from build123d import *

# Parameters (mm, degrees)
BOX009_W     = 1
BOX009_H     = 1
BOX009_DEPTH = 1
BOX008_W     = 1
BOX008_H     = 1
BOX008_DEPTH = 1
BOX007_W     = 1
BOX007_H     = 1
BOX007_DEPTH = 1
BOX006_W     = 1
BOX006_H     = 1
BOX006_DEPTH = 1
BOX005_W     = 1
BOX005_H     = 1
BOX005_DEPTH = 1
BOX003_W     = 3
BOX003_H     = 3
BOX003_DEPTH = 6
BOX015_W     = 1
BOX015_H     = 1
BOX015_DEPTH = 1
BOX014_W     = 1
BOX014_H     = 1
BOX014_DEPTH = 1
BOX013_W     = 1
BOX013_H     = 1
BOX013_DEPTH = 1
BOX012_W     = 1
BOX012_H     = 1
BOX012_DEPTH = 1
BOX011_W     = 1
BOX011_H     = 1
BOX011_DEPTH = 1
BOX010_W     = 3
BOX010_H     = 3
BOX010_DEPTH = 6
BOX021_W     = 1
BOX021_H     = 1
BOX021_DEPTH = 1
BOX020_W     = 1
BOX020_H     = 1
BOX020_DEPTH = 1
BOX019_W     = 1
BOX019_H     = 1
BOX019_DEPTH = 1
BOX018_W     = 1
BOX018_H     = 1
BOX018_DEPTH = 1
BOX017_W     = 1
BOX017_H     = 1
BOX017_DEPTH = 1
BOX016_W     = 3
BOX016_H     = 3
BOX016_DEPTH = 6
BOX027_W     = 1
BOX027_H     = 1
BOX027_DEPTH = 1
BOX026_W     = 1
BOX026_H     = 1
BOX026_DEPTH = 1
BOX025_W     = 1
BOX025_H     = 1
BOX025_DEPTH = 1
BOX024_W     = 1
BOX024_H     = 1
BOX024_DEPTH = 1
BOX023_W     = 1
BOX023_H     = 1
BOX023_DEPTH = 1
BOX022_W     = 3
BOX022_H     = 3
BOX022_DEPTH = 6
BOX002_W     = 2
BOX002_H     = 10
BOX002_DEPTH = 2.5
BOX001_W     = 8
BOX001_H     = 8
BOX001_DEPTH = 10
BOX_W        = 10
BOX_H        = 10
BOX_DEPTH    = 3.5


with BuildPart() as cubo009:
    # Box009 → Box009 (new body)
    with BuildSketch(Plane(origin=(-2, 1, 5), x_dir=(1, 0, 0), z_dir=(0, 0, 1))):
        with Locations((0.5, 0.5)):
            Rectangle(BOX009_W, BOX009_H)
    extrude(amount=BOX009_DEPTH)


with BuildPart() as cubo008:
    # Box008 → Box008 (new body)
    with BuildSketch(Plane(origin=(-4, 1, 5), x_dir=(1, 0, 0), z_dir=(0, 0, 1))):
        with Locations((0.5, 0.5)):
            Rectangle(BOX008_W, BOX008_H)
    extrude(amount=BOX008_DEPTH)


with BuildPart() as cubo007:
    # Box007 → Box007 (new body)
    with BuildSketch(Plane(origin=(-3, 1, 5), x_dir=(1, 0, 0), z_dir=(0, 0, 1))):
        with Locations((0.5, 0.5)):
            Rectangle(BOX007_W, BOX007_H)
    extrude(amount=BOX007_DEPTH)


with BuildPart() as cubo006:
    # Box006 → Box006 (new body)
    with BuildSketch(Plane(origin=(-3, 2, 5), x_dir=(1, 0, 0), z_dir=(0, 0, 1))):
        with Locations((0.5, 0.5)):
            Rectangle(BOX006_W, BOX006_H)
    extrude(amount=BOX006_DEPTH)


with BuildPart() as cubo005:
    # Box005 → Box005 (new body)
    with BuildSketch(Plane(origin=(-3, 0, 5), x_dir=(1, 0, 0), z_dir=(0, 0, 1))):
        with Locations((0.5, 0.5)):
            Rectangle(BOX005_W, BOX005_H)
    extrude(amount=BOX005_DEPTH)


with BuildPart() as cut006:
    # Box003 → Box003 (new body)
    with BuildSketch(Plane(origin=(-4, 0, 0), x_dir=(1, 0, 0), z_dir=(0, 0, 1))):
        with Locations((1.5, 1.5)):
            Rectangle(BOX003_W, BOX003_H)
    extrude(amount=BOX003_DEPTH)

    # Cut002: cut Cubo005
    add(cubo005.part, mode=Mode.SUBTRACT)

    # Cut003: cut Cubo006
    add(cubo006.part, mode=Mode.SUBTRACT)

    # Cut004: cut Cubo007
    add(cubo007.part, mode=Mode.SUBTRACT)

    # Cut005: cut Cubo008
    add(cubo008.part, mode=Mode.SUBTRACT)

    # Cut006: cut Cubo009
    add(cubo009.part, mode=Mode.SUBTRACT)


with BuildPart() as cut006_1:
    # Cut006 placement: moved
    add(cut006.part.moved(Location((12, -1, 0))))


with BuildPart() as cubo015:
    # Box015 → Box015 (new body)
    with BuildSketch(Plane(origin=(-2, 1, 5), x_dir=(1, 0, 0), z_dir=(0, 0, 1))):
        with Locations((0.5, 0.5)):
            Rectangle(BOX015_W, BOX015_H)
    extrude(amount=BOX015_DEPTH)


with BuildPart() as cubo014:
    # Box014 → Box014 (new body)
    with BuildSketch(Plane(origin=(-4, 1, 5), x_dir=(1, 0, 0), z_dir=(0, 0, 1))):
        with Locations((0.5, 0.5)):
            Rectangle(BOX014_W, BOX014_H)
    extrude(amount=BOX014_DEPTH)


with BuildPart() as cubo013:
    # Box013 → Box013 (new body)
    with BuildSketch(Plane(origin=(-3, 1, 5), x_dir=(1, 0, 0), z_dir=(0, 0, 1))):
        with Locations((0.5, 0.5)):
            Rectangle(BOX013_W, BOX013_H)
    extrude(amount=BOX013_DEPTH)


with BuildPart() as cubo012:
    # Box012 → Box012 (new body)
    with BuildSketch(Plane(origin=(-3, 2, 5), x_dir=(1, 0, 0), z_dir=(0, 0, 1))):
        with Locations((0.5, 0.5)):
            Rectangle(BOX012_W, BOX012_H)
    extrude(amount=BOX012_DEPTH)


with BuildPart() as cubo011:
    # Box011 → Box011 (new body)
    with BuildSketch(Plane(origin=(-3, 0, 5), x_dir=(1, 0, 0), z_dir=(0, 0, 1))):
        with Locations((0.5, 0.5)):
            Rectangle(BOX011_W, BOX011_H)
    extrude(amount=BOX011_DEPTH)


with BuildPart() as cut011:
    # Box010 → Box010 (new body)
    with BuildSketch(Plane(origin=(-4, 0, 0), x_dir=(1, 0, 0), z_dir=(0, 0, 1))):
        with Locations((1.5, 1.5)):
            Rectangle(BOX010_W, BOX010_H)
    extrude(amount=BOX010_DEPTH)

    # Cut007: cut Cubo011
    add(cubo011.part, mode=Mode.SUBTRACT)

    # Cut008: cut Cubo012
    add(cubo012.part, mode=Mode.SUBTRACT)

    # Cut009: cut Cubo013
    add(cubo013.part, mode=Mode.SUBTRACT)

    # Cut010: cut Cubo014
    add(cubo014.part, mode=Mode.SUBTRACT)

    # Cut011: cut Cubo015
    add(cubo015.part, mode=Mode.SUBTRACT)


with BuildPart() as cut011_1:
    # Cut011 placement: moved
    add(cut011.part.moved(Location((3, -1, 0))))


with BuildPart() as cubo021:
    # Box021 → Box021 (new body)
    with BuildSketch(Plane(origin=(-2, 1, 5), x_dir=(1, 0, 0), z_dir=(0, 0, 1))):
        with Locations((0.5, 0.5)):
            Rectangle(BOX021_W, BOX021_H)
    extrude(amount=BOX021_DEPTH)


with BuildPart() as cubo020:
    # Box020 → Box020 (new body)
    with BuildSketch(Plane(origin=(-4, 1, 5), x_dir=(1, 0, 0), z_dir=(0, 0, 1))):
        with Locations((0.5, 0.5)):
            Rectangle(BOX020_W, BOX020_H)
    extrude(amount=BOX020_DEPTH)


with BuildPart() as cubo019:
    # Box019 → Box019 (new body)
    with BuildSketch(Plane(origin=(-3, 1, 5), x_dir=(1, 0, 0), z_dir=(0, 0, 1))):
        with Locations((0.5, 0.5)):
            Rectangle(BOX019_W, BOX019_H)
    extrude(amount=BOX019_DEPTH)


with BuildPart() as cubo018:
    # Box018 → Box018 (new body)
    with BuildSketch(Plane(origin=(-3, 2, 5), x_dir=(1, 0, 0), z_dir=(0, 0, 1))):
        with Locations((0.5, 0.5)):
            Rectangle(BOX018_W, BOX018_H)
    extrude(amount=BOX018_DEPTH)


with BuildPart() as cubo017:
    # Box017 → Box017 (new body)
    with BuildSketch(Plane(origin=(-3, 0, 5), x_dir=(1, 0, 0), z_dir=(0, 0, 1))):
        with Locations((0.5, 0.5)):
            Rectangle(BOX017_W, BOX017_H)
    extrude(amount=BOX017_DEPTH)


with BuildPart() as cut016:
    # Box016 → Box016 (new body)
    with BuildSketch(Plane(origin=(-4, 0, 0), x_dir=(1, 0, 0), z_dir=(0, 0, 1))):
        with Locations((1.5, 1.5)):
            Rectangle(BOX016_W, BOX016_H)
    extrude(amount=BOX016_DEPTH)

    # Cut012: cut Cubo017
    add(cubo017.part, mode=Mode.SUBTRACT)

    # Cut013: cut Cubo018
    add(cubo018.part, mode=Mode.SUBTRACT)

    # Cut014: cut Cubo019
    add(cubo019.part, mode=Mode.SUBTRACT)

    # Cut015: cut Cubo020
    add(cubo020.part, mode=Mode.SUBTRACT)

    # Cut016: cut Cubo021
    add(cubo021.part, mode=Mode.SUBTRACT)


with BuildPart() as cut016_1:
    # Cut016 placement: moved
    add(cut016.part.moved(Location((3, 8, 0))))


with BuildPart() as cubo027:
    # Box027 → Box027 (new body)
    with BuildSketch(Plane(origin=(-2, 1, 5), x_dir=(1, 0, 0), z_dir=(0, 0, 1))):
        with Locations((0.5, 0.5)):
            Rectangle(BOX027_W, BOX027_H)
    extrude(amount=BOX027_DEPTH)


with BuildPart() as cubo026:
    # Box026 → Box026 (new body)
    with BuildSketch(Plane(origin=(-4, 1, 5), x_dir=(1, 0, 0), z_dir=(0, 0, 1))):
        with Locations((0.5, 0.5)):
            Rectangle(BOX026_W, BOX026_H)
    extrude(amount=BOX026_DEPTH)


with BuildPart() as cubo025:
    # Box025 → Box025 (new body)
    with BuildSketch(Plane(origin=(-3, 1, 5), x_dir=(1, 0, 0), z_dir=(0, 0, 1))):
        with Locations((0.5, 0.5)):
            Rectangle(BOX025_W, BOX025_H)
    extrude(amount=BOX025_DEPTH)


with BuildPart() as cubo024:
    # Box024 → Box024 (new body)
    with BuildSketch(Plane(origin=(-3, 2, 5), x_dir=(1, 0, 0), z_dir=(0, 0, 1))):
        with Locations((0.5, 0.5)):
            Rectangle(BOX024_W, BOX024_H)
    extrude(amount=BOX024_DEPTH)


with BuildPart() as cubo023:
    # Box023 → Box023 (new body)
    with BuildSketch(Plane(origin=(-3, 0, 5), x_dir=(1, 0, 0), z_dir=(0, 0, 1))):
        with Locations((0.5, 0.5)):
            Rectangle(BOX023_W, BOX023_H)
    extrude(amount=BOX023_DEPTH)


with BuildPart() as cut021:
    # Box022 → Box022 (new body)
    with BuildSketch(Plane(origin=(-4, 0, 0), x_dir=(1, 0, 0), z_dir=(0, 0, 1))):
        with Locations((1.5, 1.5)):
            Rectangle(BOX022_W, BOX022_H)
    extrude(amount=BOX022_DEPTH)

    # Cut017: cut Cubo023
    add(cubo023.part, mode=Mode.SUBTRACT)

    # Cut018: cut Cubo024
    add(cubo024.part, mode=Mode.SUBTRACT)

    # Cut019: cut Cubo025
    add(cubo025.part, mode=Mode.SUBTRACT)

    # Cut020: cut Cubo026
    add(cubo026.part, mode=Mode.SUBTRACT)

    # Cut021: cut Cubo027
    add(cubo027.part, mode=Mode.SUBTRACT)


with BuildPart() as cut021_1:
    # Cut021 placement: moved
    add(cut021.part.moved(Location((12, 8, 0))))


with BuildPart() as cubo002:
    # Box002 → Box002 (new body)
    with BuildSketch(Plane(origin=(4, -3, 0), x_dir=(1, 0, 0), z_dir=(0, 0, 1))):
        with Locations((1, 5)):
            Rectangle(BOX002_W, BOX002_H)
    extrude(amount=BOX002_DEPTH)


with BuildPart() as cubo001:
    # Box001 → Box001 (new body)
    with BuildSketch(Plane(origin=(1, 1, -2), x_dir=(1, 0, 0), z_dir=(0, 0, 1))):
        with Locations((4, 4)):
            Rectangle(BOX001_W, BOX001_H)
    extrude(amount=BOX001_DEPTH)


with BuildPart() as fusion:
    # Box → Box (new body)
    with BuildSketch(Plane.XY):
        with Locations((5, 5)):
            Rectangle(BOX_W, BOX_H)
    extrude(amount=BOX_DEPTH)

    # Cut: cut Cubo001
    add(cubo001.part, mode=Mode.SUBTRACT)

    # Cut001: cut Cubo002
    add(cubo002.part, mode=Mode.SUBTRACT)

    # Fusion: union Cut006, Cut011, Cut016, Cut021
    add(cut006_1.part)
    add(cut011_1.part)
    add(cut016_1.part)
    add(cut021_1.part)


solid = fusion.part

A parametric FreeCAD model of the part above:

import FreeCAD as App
import Part
import Sketcher

V = App.Vector


def add_polygon(sketch, points):
    """Adds a closed chain of lines whose ends are joined by coincident constraints."""
    first, n = sketch.GeometryCount, len(points)
    for a, b in zip(points, points[1:] + points[:1]):
        sketch.addGeometry(Part.LineSegment(App.Vector(*a, 0), App.Vector(*b, 0)), False)
    for i in range(n):
        sketch.addConstraint(Sketcher.Constraint("Coincident", first + i, 2, first + (i + 1) % n, 1))

doc = App.newDocument("Part")
body = doc.addObject("PartDesign::Body", "Body")

# Sketch on XY plane
sketch1 = doc.addObject("Sketcher::SketchObject", "Sketch")
body.addObject(sketch1)
sketch1.AttachmentSupport = (doc.XY_Plane, [""])
sketch1.MapMode = "FlatFace"
sketch1.AttachmentOffset = App.Placement(V(0, 0, 5), App.Rotation())
add_polygon(sketch1, [(-2, 2), (-2, 1), (-1, 1), (-1, 2)])  # lines 0-3
sketch1.addConstraint(Sketcher.Constraint("Vertical", 0))
sketch1.addConstraint(Sketcher.Constraint("Horizontal", 1))
sketch1.addConstraint(Sketcher.Constraint("Vertical", 2))
sketch1.addConstraint(Sketcher.Constraint("Horizontal", 3))
sketch1.addConstraint(Sketcher.Constraint("Equal", 3, 0))
sketch1.addConstraint(Sketcher.Constraint("DistanceX", 1, 1, 1, 2, 1.0))
sketch1.addConstraint(Sketcher.Constraint("DistanceX", 0, 2, -1, 1, 2.0))
sketch1.addConstraint(Sketcher.Constraint("DistanceY", -1, 1, 0, 2, 1.0))
pad1 = doc.addObject("PartDesign::Pad", "Pad")
body.addObject(pad1)
pad1.Profile = sketch1
pad1.Length = 1
body2 = doc.addObject("PartDesign::Body", "Body001")

# Sketch on XY plane
sketch2 = doc.addObject("Sketcher::SketchObject", "Sketch001")
body2.addObject(sketch2)
sketch2.AttachmentSupport = (doc.getObject("XY_Plane001"), [""])
sketch2.MapMode = "FlatFace"
sketch2.AttachmentOffset = App.Placement(V(0, 0, 5), App.Rotation())
add_polygon(sketch2, [(-4, 2), (-4, 1), (-3, 1), (-3, 2)])  # lines 0-3
sketch2.addConstraint(Sketcher.Constraint("Vertical", 0))
sketch2.addConstraint(Sketcher.Constraint("Horizontal", 1))
sketch2.addConstraint(Sketcher.Constraint("Vertical", 2))
sketch2.addConstraint(Sketcher.Constraint("Horizontal", 3))
sketch2.addConstraint(Sketcher.Constraint("Equal", 3, 0))
sketch2.addConstraint(Sketcher.Constraint("DistanceX", 1, 1, 1, 2, 1.0))
sketch2.addConstraint(Sketcher.Constraint("DistanceX", 0, 2, -1, 1, 4.0))
sketch2.addConstraint(Sketcher.Constraint("DistanceY", -1, 1, 0, 2, 1.0))
pad2 = doc.addObject("PartDesign::Pad", "Pad001")
body2.addObject(pad2)
pad2.Profile = sketch2
pad2.Length = 1
body3 = doc.addObject("PartDesign::Body", "Body002")

# Sketch on XY plane
sketch3 = doc.addObject("Sketcher::SketchObject", "Sketch002")
body3.addObject(sketch3)
sketch3.AttachmentSupport = (doc.getObject("XY_Plane002"), [""])
sketch3.MapMode = "FlatFace"
sketch3.AttachmentOffset = App.Placement(V(0, 0, 5), App.Rotation())
add_polygon(sketch3, [(-3, 2), (-3, 1), (-2, 1), (-2, 2)])  # lines 0-3
sketch3.addConstraint(Sketcher.Constraint("Vertical", 0))
sketch3.addConstraint(Sketcher.Constraint("Horizontal", 1))
sketch3.addConstraint(Sketcher.Constraint("Vertical", 2))
sketch3.addConstraint(Sketcher.Constraint("Horizontal", 3))
sketch3.addConstraint(Sketcher.Constraint("Equal", 3, 0))
sketch3.addConstraint(Sketcher.Constraint("DistanceX", 1, 1, 1, 2, 1.0))
sketch3.addConstraint(Sketcher.Constraint("DistanceX", 0, 2, -1, 1, 3.0))
sketch3.addConstraint(Sketcher.Constraint("DistanceY", -1, 1, 0, 2, 1.0))
pad3 = doc.addObject("PartDesign::Pad", "Pad002")
body3.addObject(pad3)
pad3.Profile = sketch3
pad3.Length = 1
body4 = doc.addObject("PartDesign::Body", "Body003")

# Sketch on XY plane
sketch4 = doc.addObject("Sketcher::SketchObject", "Sketch003")
body4.addObject(sketch4)
sketch4.AttachmentSupport = (doc.getObject("XY_Plane003"), [""])
sketch4.MapMode = "FlatFace"
sketch4.AttachmentOffset = App.Placement(V(0, 0, 5), App.Rotation())
add_polygon(sketch4, [(-3, 3), (-3, 2), (-2, 2), (-2, 3)])  # lines 0-3
sketch4.addConstraint(Sketcher.Constraint("Vertical", 0))
sketch4.addConstraint(Sketcher.Constraint("Horizontal", 1))
sketch4.addConstraint(Sketcher.Constraint("Vertical", 2))
sketch4.addConstraint(Sketcher.Constraint("Horizontal", 3))
sketch4.addConstraint(Sketcher.Constraint("Equal", 3, 0))
sketch4.addConstraint(Sketcher.Constraint("DistanceX", 1, 1, 1, 2, 1.0))
sketch4.addConstraint(Sketcher.Constraint("DistanceX", 0, 2, -1, 1, 3.0))
sketch4.addConstraint(Sketcher.Constraint("DistanceY", -1, 1, 0, 2, 2.0))
pad4 = doc.addObject("PartDesign::Pad", "Pad003")
body4.addObject(pad4)
pad4.Profile = sketch4
pad4.Length = 1
body5 = doc.addObject("PartDesign::Body", "Body004")

# Sketch on XY plane
sketch5 = doc.addObject("Sketcher::SketchObject", "Sketch004")
body5.addObject(sketch5)
sketch5.AttachmentSupport = (doc.getObject("XY_Plane004"), [""])
sketch5.MapMode = "FlatFace"
sketch5.AttachmentOffset = App.Placement(V(0, 0, 5), App.Rotation())
add_polygon(sketch5, [(-3, 1), (-3, 0), (-2, 0), (-2, 1)])  # lines 0-3
sketch5.addConstraint(Sketcher.Constraint("Vertical", 0))
sketch5.addConstraint(Sketcher.Constraint("Horizontal", 1))
sketch5.addConstraint(Sketcher.Constraint("Vertical", 2))
sketch5.addConstraint(Sketcher.Constraint("Horizontal", 3))
sketch5.addConstraint(Sketcher.Constraint("PointOnObject", 0, 2, -1))
sketch5.addConstraint(Sketcher.Constraint("Equal", 3, 0))
sketch5.addConstraint(Sketcher.Constraint("DistanceX", 1, 1, 1, 2, 1.0))
sketch5.addConstraint(Sketcher.Constraint("DistanceX", 0, 2, -1, 1, 3.0))
pad5 = doc.addObject("PartDesign::Pad", "Pad004")
body5.addObject(pad5)
pad5.Profile = sketch5
pad5.Length = 1
body6 = doc.addObject("PartDesign::Body", "Body005")

# Sketch on XY plane
sketch6 = doc.addObject("Sketcher::SketchObject", "Sketch005")
body6.addObject(sketch6)
sketch6.AttachmentSupport = (doc.getObject("XY_Plane005"), [""])
sketch6.MapMode = "FlatFace"
add_polygon(sketch6, [(-4, 3), (-4, 0), (-1, 0), (-1, 3)])  # lines 0-3
sketch6.addConstraint(Sketcher.Constraint("Vertical", 0))
sketch6.addConstraint(Sketcher.Constraint("Horizontal", 1))
sketch6.addConstraint(Sketcher.Constraint("Vertical", 2))
sketch6.addConstraint(Sketcher.Constraint("Horizontal", 3))
sketch6.addConstraint(Sketcher.Constraint("PointOnObject", 0, 2, -1))
sketch6.addConstraint(Sketcher.Constraint("Equal", 3, 0))
sketch6.addConstraint(Sketcher.Constraint("DistanceX", 1, 1, 1, 2, 3.0))
sketch6.addConstraint(Sketcher.Constraint("DistanceX", 0, 2, -1, 1, 4.0))
pad6 = doc.addObject("PartDesign::Pad", "Pad005")
body6.addObject(pad6)
pad6.Profile = sketch6
pad6.Length = 6
doc.recompute()

boolean = doc.addObject("PartDesign::Boolean", "Boolean")
body6.addObject(boolean)
boolean.Type = "Cut"
boolean.addObjects([body5])
doc.recompute()

boolean2 = doc.addObject("PartDesign::Boolean", "Boolean001")
body6.addObject(boolean2)
boolean2.Type = "Cut"
boolean2.addObjects([body4])
doc.recompute()

boolean3 = doc.addObject("PartDesign::Boolean", "Boolean002")
body6.addObject(boolean3)
boolean3.Type = "Cut"
boolean3.addObjects([body3])
doc.recompute()

boolean4 = doc.addObject("PartDesign::Boolean", "Boolean003")
body6.addObject(boolean4)
boolean4.Type = "Cut"
boolean4.addObjects([body2])
doc.recompute()

boolean5 = doc.addObject("PartDesign::Boolean", "Boolean004")
body6.addObject(boolean5)
boolean5.Type = "Cut"
boolean5.addObjects([body])
body7 = doc.addObject("PartDesign::Body", "Body006")
doc.recompute()

body6.Placement = App.Placement(V(12, -1, 0), App.Rotation(V(0, 0, 1), 0))
boolean6 = doc.addObject("PartDesign::Boolean", "Boolean005")
body7.addObject(boolean6)
boolean6.Type = "Fuse"
boolean6.addObjects([body6])
body8 = doc.addObject("PartDesign::Body", "Body007")

# Sketch on XY plane
sketch7 = doc.addObject("Sketcher::SketchObject", "Sketch006")
body8.addObject(sketch7)
sketch7.AttachmentSupport = (doc.getObject("XY_Plane007"), [""])
sketch7.MapMode = "FlatFace"
sketch7.AttachmentOffset = App.Placement(V(0, 0, 5), App.Rotation())
add_polygon(sketch7, [(-2, 2), (-2, 1), (-1, 1), (-1, 2)])  # lines 0-3
sketch7.addConstraint(Sketcher.Constraint("Vertical", 0))
sketch7.addConstraint(Sketcher.Constraint("Horizontal", 1))
sketch7.addConstraint(Sketcher.Constraint("Vertical", 2))
sketch7.addConstraint(Sketcher.Constraint("Horizontal", 3))
sketch7.addConstraint(Sketcher.Constraint("Equal", 3, 0))
sketch7.addConstraint(Sketcher.Constraint("DistanceX", 1, 1, 1, 2, 1.0))
sketch7.addConstraint(Sketcher.Constraint("DistanceX", 0, 2, -1, 1, 2.0))
sketch7.addConstraint(Sketcher.Constraint("DistanceY", -1, 1, 0, 2, 1.0))
pad7 = doc.addObject("PartDesign::Pad", "Pad006")
body8.addObject(pad7)
pad7.Profile = sketch7
pad7.Length = 1
body9 = doc.addObject("PartDesign::Body", "Body008")

# Sketch on XY plane
sketch8 = doc.addObject("Sketcher::SketchObject", "Sketch007")
body9.addObject(sketch8)
sketch8.AttachmentSupport = (doc.getObject("XY_Plane008"), [""])
sketch8.MapMode = "FlatFace"
sketch8.AttachmentOffset = App.Placement(V(0, 0, 5), App.Rotation())
add_polygon(sketch8, [(-4, 2), (-4, 1), (-3, 1), (-3, 2)])  # lines 0-3
sketch8.addConstraint(Sketcher.Constraint("Vertical", 0))
sketch8.addConstraint(Sketcher.Constraint("Horizontal", 1))
sketch8.addConstraint(Sketcher.Constraint("Vertical", 2))
sketch8.addConstraint(Sketcher.Constraint("Horizontal", 3))
sketch8.addConstraint(Sketcher.Constraint("Equal", 3, 0))
sketch8.addConstraint(Sketcher.Constraint("DistanceX", 1, 1, 1, 2, 1.0))
sketch8.addConstraint(Sketcher.Constraint("DistanceX", 0, 2, -1, 1, 4.0))
sketch8.addConstraint(Sketcher.Constraint("DistanceY", -1, 1, 0, 2, 1.0))
pad8 = doc.addObject("PartDesign::Pad", "Pad007")
body9.addObject(pad8)
pad8.Profile = sketch8
pad8.Length = 1
body10 = doc.addObject("PartDesign::Body", "Body009")

# Sketch on XY plane
sketch9 = doc.addObject("Sketcher::SketchObject", "Sketch008")
body10.addObject(sketch9)
sketch9.AttachmentSupport = (doc.getObject("XY_Plane009"), [""])
sketch9.MapMode = "FlatFace"
sketch9.AttachmentOffset = App.Placement(V(0, 0, 5), App.Rotation())
add_polygon(sketch9, [(-3, 2), (-3, 1), (-2, 1), (-2, 2)])  # lines 0-3
sketch9.addConstraint(Sketcher.Constraint("Vertical", 0))
sketch9.addConstraint(Sketcher.Constraint("Horizontal", 1))
sketch9.addConstraint(Sketcher.Constraint("Vertical", 2))
sketch9.addConstraint(Sketcher.Constraint("Horizontal", 3))
sketch9.addConstraint(Sketcher.Constraint("Equal", 3, 0))
sketch9.addConstraint(Sketcher.Constraint("DistanceX", 1, 1, 1, 2, 1.0))
sketch9.addConstraint(Sketcher.Constraint("DistanceX", 0, 2, -1, 1, 3.0))
sketch9.addConstraint(Sketcher.Constraint("DistanceY", -1, 1, 0, 2, 1.0))
pad9 = doc.addObject("PartDesign::Pad", "Pad008")
body10.addObject(pad9)
pad9.Profile = sketch9
pad9.Length = 1
body11 = doc.addObject("PartDesign::Body", "Body010")

# Sketch on XY plane
sketch10 = doc.addObject("Sketcher::SketchObject", "Sketch009")
body11.addObject(sketch10)
sketch10.AttachmentSupport = (doc.getObject("XY_Plane010"), [""])
sketch10.MapMode = "FlatFace"
sketch10.AttachmentOffset = App.Placement(V(0, 0, 5), App.Rotation())
add_polygon(sketch10, [(-3, 3), (-3, 2), (-2, 2), (-2, 3)])  # lines 0-3
sketch10.addConstraint(Sketcher.Constraint("Vertical", 0))
sketch10.addConstraint(Sketcher.Constraint("Horizontal", 1))
sketch10.addConstraint(Sketcher.Constraint("Vertical", 2))
sketch10.addConstraint(Sketcher.Constraint("Horizontal", 3))
sketch10.addConstraint(Sketcher.Constraint("Equal", 3, 0))
sketch10.addConstraint(Sketcher.Constraint("DistanceX", 1, 1, 1, 2, 1.0))
sketch10.addConstraint(Sketcher.Constraint("DistanceX", 0, 2, -1, 1, 3.0))
sketch10.addConstraint(Sketcher.Constraint("DistanceY", -1, 1, 0, 2, 2.0))
pad10 = doc.addObject("PartDesign::Pad", "Pad009")
body11.addObject(pad10)
pad10.Profile = sketch10
pad10.Length = 1
body12 = doc.addObject("PartDesign::Body", "Body011")

# Sketch on XY plane
sketch11 = doc.addObject("Sketcher::SketchObject", "Sketch010")
body12.addObject(sketch11)
sketch11.AttachmentSupport = (doc.getObject("XY_Plane011"), [""])
sketch11.MapMode = "FlatFace"
sketch11.AttachmentOffset = App.Placement(V(0, 0, 5), App.Rotation())
add_polygon(sketch11, [(-3, 1), (-3, 0), (-2, 0), (-2, 1)])  # lines 0-3
sketch11.addConstraint(Sketcher.Constraint("Vertical", 0))
sketch11.addConstraint(Sketcher.Constraint("Horizontal", 1))
sketch11.addConstraint(Sketcher.Constraint("Vertical", 2))
sketch11.addConstraint(Sketcher.Constraint("Horizontal", 3))
sketch11.addConstraint(Sketcher.Constraint("PointOnObject", 0, 2, -1))
sketch11.addConstraint(Sketcher.Constraint("Equal", 3, 0))
sketch11.addConstraint(Sketcher.Constraint("DistanceX", 1, 1, 1, 2, 1.0))
sketch11.addConstraint(Sketcher.Constraint("DistanceX", 0, 2, -1, 1, 3.0))
pad11 = doc.addObject("PartDesign::Pad", "Pad010")
body12.addObject(pad11)
pad11.Profile = sketch11
pad11.Length = 1
body13 = doc.addObject("PartDesign::Body", "Body012")

# Sketch on XY plane
sketch12 = doc.addObject("Sketcher::SketchObject", "Sketch011")
body13.addObject(sketch12)
sketch12.AttachmentSupport = (doc.getObject("XY_Plane012"), [""])
sketch12.MapMode = "FlatFace"
add_polygon(sketch12, [(-4, 3), (-4, 0), (-1, 0), (-1, 3)])  # lines 0-3
sketch12.addConstraint(Sketcher.Constraint("Vertical", 0))
sketch12.addConstraint(Sketcher.Constraint("Horizontal", 1))
sketch12.addConstraint(Sketcher.Constraint("Vertical", 2))
sketch12.addConstraint(Sketcher.Constraint("Horizontal", 3))
sketch12.addConstraint(Sketcher.Constraint("PointOnObject", 0, 2, -1))
sketch12.addConstraint(Sketcher.Constraint("Equal", 3, 0))
sketch12.addConstraint(Sketcher.Constraint("DistanceX", 1, 1, 1, 2, 3.0))
sketch12.addConstraint(Sketcher.Constraint("DistanceX", 0, 2, -1, 1, 4.0))
pad12 = doc.addObject("PartDesign::Pad", "Pad011")
body13.addObject(pad12)
pad12.Profile = sketch12
pad12.Length = 6
doc.recompute()

boolean7 = doc.addObject("PartDesign::Boolean", "Boolean006")
body13.addObject(boolean7)
boolean7.Type = "Cut"
boolean7.addObjects([body12])
doc.recompute()

boolean8 = doc.addObject("PartDesign::Boolean", "Boolean007")
body13.addObject(boolean8)
boolean8.Type = "Cut"
boolean8.addObjects([body11])
doc.recompute()

boolean9 = doc.addObject("PartDesign::Boolean", "Boolean008")
body13.addObject(boolean9)
boolean9.Type = "Cut"
boolean9.addObjects([body10])
doc.recompute()

boolean10 = doc.addObject("PartDesign::Boolean", "Boolean009")
body13.addObject(boolean10)
boolean10.Type = "Cut"
boolean10.addObjects([body9])
doc.recompute()

boolean11 = doc.addObject("PartDesign::Boolean", "Boolean010")
body13.addObject(boolean11)
boolean11.Type = "Cut"
boolean11.addObjects([body8])
body14 = doc.addObject("PartDesign::Body", "Body013")
doc.recompute()

body13.Placement = App.Placement(V(3, -1, 0), App.Rotation(V(0, 0, 1), 0))
boolean12 = doc.addObject("PartDesign::Boolean", "Boolean011")
body14.addObject(boolean12)
boolean12.Type = "Fuse"
boolean12.addObjects([body13])
body15 = doc.addObject("PartDesign::Body", "Body014")

# Sketch on XY plane
sketch13 = doc.addObject("Sketcher::SketchObject", "Sketch012")
body15.addObject(sketch13)
sketch13.AttachmentSupport = (doc.getObject("XY_Plane014"), [""])
sketch13.MapMode = "FlatFace"
sketch13.AttachmentOffset = App.Placement(V(0, 0, 5), App.Rotation())
add_polygon(sketch13, [(-2, 2), (-2, 1), (-1, 1), (-1, 2)])  # lines 0-3
sketch13.addConstraint(Sketcher.Constraint("Vertical", 0))
sketch13.addConstraint(Sketcher.Constraint("Horizontal", 1))
sketch13.addConstraint(Sketcher.Constraint("Vertical", 2))
sketch13.addConstraint(Sketcher.Constraint("Horizontal", 3))
sketch13.addConstraint(Sketcher.Constraint("Equal", 3, 0))
sketch13.addConstraint(Sketcher.Constraint("DistanceX", 1, 1, 1, 2, 1.0))
sketch13.addConstraint(Sketcher.Constraint("DistanceX", 0, 2, -1, 1, 2.0))
sketch13.addConstraint(Sketcher.Constraint("DistanceY", -1, 1, 0, 2, 1.0))
pad13 = doc.addObject("PartDesign::Pad", "Pad012")
body15.addObject(pad13)
pad13.Profile = sketch13
pad13.Length = 1
body16 = doc.addObject("PartDesign::Body", "Body015")

# Sketch on XY plane
sketch14 = doc.addObject("Sketcher::SketchObject", "Sketch013")
body16.addObject(sketch14)
sketch14.AttachmentSupport = (doc.getObject("XY_Plane015"), [""])
sketch14.MapMode = "FlatFace"
sketch14.AttachmentOffset = App.Placement(V(0, 0, 5), App.Rotation())
add_polygon(sketch14, [(-4, 2), (-4, 1), (-3, 1), (-3, 2)])  # lines 0-3
sketch14.addConstraint(Sketcher.Constraint("Vertical", 0))
sketch14.addConstraint(Sketcher.Constraint("Horizontal", 1))
sketch14.addConstraint(Sketcher.Constraint("Vertical", 2))
sketch14.addConstraint(Sketcher.Constraint("Horizontal", 3))
sketch14.addConstraint(Sketcher.Constraint("Equal", 3, 0))
sketch14.addConstraint(Sketcher.Constraint("DistanceX", 1, 1, 1, 2, 1.0))
sketch14.addConstraint(Sketcher.Constraint("DistanceX", 0, 2, -1, 1, 4.0))
sketch14.addConstraint(Sketcher.Constraint("DistanceY", -1, 1, 0, 2, 1.0))
pad14 = doc.addObject("PartDesign::Pad", "Pad013")
body16.addObject(pad14)
pad14.Profile = sketch14
pad14.Length = 1
body17 = doc.addObject("PartDesign::Body", "Body016")

# Sketch on XY plane
sketch15 = doc.addObject("Sketcher::SketchObject", "Sketch014")
body17.addObject(sketch15)
sketch15.AttachmentSupport = (doc.getObject("XY_Plane016"), [""])
sketch15.MapMode = "FlatFace"
sketch15.AttachmentOffset = App.Placement(V(0, 0, 5), App.Rotation())
add_polygon(sketch15, [(-3, 2), (-3, 1), (-2, 1), (-2, 2)])  # lines 0-3
sketch15.addConstraint(Sketcher.Constraint("Vertical", 0))
sketch15.addConstraint(Sketcher.Constraint("Horizontal", 1))
sketch15.addConstraint(Sketcher.Constraint("Vertical", 2))
sketch15.addConstraint(Sketcher.Constraint("Horizontal", 3))
sketch15.addConstraint(Sketcher.Constraint("Equal", 3, 0))
sketch15.addConstraint(Sketcher.Constraint("DistanceX", 1, 1, 1, 2, 1.0))
sketch15.addConstraint(Sketcher.Constraint("DistanceX", 0, 2, -1, 1, 3.0))
sketch15.addConstraint(Sketcher.Constraint("DistanceY", -1, 1, 0, 2, 1.0))
pad15 = doc.addObject("PartDesign::Pad", "Pad014")
body17.addObject(pad15)
pad15.Profile = sketch15
pad15.Length = 1
body18 = doc.addObject("PartDesign::Body", "Body017")

# Sketch on XY plane
sketch16 = doc.addObject("Sketcher::SketchObject", "Sketch015")
body18.addObject(sketch16)
sketch16.AttachmentSupport = (doc.getObject("XY_Plane017"), [""])
sketch16.MapMode = "FlatFace"
sketch16.AttachmentOffset = App.Placement(V(0, 0, 5), App.Rotation())
add_polygon(sketch16, [(-3, 3), (-3, 2), (-2, 2), (-2, 3)])  # lines 0-3
sketch16.addConstraint(Sketcher.Constraint("Vertical", 0))
sketch16.addConstraint(Sketcher.Constraint("Horizontal", 1))
sketch16.addConstraint(Sketcher.Constraint("Vertical", 2))
sketch16.addConstraint(Sketcher.Constraint("Horizontal", 3))
sketch16.addConstraint(Sketcher.Constraint("Equal", 3, 0))
sketch16.addConstraint(Sketcher.Constraint("DistanceX", 1, 1, 1, 2, 1.0))
sketch16.addConstraint(Sketcher.Constraint("DistanceX", 0, 2, -1, 1, 3.0))
sketch16.addConstraint(Sketcher.Constraint("DistanceY", -1, 1, 0, 2, 2.0))
pad16 = doc.addObject("PartDesign::Pad", "Pad015")
body18.addObject(pad16)
pad16.Profile = sketch16
pad16.Length = 1
body19 = doc.addObject("PartDesign::Body", "Body018")

# Sketch on XY plane
sketch17 = doc.addObject("Sketcher::SketchObject", "Sketch016")
body19.addObject(sketch17)
sketch17.AttachmentSupport = (doc.getObject("XY_Plane018"), [""])
sketch17.MapMode = "FlatFace"
sketch17.AttachmentOffset = App.Placement(V(0, 0, 5), App.Rotation())
add_polygon(sketch17, [(-3, 1), (-3, 0), (-2, 0), (-2, 1)])  # lines 0-3
sketch17.addConstraint(Sketcher.Constraint("Vertical", 0))
sketch17.addConstraint(Sketcher.Constraint("Horizontal", 1))
sketch17.addConstraint(Sketcher.Constraint("Vertical", 2))
sketch17.addConstraint(Sketcher.Constraint("Horizontal", 3))
sketch17.addConstraint(Sketcher.Constraint("PointOnObject", 0, 2, -1))
sketch17.addConstraint(Sketcher.Constraint("Equal", 3, 0))
sketch17.addConstraint(Sketcher.Constraint("DistanceX", 1, 1, 1, 2, 1.0))
sketch17.addConstraint(Sketcher.Constraint("DistanceX", 0, 2, -1, 1, 3.0))
pad17 = doc.addObject("PartDesign::Pad", "Pad016")
body19.addObject(pad17)
pad17.Profile = sketch17
pad17.Length = 1
body20 = doc.addObject("PartDesign::Body", "Body019")

# Sketch on XY plane
sketch18 = doc.addObject("Sketcher::SketchObject", "Sketch017")
body20.addObject(sketch18)
sketch18.AttachmentSupport = (doc.getObject("XY_Plane019"), [""])
sketch18.MapMode = "FlatFace"
add_polygon(sketch18, [(-4, 3), (-4, 0), (-1, 0), (-1, 3)])  # lines 0-3
sketch18.addConstraint(Sketcher.Constraint("Vertical", 0))
sketch18.addConstraint(Sketcher.Constraint("Horizontal", 1))
sketch18.addConstraint(Sketcher.Constraint("Vertical", 2))
sketch18.addConstraint(Sketcher.Constraint("Horizontal", 3))
sketch18.addConstraint(Sketcher.Constraint("PointOnObject", 0, 2, -1))
sketch18.addConstraint(Sketcher.Constraint("Equal", 3, 0))
sketch18.addConstraint(Sketcher.Constraint("DistanceX", 1, 1, 1, 2, 3.0))
sketch18.addConstraint(Sketcher.Constraint("DistanceX", 0, 2, -1, 1, 4.0))
pad18 = doc.addObject("PartDesign::Pad", "Pad017")
body20.addObject(pad18)
pad18.Profile = sketch18
pad18.Length = 6
doc.recompute()

boolean13 = doc.addObject("PartDesign::Boolean", "Boolean012")
body20.addObject(boolean13)
boolean13.Type = "Cut"
boolean13.addObjects([body19])
doc.recompute()

boolean14 = doc.addObject("PartDesign::Boolean", "Boolean013")
body20.addObject(boolean14)
boolean14.Type = "Cut"
boolean14.addObjects([body18])
doc.recompute()

boolean15 = doc.addObject("PartDesign::Boolean", "Boolean014")
body20.addObject(boolean15)
boolean15.Type = "Cut"
boolean15.addObjects([body17])
doc.recompute()

boolean16 = doc.addObject("PartDesign::Boolean", "Boolean015")
body20.addObject(boolean16)
boolean16.Type = "Cut"
boolean16.addObjects([body16])
doc.recompute()

boolean17 = doc.addObject("PartDesign::Boolean", "Boolean016")
body20.addObject(boolean17)
boolean17.Type = "Cut"
boolean17.addObjects([body15])
body21 = doc.addObject("PartDesign::Body", "Body020")
doc.recompute()

body20.Placement = App.Placement(V(3, 8, 0), App.Rotation(V(0, 0, 1), 0))
boolean18 = doc.addObject("PartDesign::Boolean", "Boolean017")
body21.addObject(boolean18)
boolean18.Type = "Fuse"
boolean18.addObjects([body20])
body22 = doc.addObject("PartDesign::Body", "Body021")

# Sketch on XY plane
sketch19 = doc.addObject("Sketcher::SketchObject", "Sketch018")
body22.addObject(sketch19)
sketch19.AttachmentSupport = (doc.getObject("XY_Plane021"), [""])
sketch19.MapMode = "FlatFace"
sketch19.AttachmentOffset = App.Placement(V(0, 0, 5), App.Rotation())
add_polygon(sketch19, [(-2, 2), (-2, 1), (-1, 1), (-1, 2)])  # lines 0-3
sketch19.addConstraint(Sketcher.Constraint("Vertical", 0))
sketch19.addConstraint(Sketcher.Constraint("Horizontal", 1))
sketch19.addConstraint(Sketcher.Constraint("Vertical", 2))
sketch19.addConstraint(Sketcher.Constraint("Horizontal", 3))
sketch19.addConstraint(Sketcher.Constraint("Equal", 3, 0))
sketch19.addConstraint(Sketcher.Constraint("DistanceX", 1, 1, 1, 2, 1.0))
sketch19.addConstraint(Sketcher.Constraint("DistanceX", 0, 2, -1, 1, 2.0))
sketch19.addConstraint(Sketcher.Constraint("DistanceY", -1, 1, 0, 2, 1.0))
pad19 = doc.addObject("PartDesign::Pad", "Pad018")
body22.addObject(pad19)
pad19.Profile = sketch19
pad19.Length = 1
body23 = doc.addObject("PartDesign::Body", "Body022")

# Sketch on XY plane
sketch20 = doc.addObject("Sketcher::SketchObject", "Sketch019")
body23.addObject(sketch20)
sketch20.AttachmentSupport = (doc.getObject("XY_Plane022"), [""])
sketch20.MapMode = "FlatFace"
sketch20.AttachmentOffset = App.Placement(V(0, 0, 5), App.Rotation())
add_polygon(sketch20, [(-4, 2), (-4, 1), (-3, 1), (-3, 2)])  # lines 0-3
sketch20.addConstraint(Sketcher.Constraint("Vertical", 0))
sketch20.addConstraint(Sketcher.Constraint("Horizontal", 1))
sketch20.addConstraint(Sketcher.Constraint("Vertical", 2))
sketch20.addConstraint(Sketcher.Constraint("Horizontal", 3))
sketch20.addConstraint(Sketcher.Constraint("Equal", 3, 0))
sketch20.addConstraint(Sketcher.Constraint("DistanceX", 1, 1, 1, 2, 1.0))
sketch20.addConstraint(Sketcher.Constraint("DistanceX", 0, 2, -1, 1, 4.0))
sketch20.addConstraint(Sketcher.Constraint("DistanceY", -1, 1, 0, 2, 1.0))
pad20 = doc.addObject("PartDesign::Pad", "Pad019")
body23.addObject(pad20)
pad20.Profile = sketch20
pad20.Length = 1
body24 = doc.addObject("PartDesign::Body", "Body023")

# Sketch on XY plane
sketch21 = doc.addObject("Sketcher::SketchObject", "Sketch020")
body24.addObject(sketch21)
sketch21.AttachmentSupport = (doc.getObject("XY_Plane023"), [""])
sketch21.MapMode = "FlatFace"
sketch21.AttachmentOffset = App.Placement(V(0, 0, 5), App.Rotation())
add_polygon(sketch21, [(-3, 2), (-3, 1), (-2, 1), (-2, 2)])  # lines 0-3
sketch21.addConstraint(Sketcher.Constraint("Vertical", 0))
sketch21.addConstraint(Sketcher.Constraint("Horizontal", 1))
sketch21.addConstraint(Sketcher.Constraint("Vertical", 2))
sketch21.addConstraint(Sketcher.Constraint("Horizontal", 3))
sketch21.addConstraint(Sketcher.Constraint("Equal", 3, 0))
sketch21.addConstraint(Sketcher.Constraint("DistanceX", 1, 1, 1, 2, 1.0))
sketch21.addConstraint(Sketcher.Constraint("DistanceX", 0, 2, -1, 1, 3.0))
sketch21.addConstraint(Sketcher.Constraint("DistanceY", -1, 1, 0, 2, 1.0))
pad21 = doc.addObject("PartDesign::Pad", "Pad020")
body24.addObject(pad21)
pad21.Profile = sketch21
pad21.Length = 1
body25 = doc.addObject("PartDesign::Body", "Body024")

# Sketch on XY plane
sketch22 = doc.addObject("Sketcher::SketchObject", "Sketch021")
body25.addObject(sketch22)
sketch22.AttachmentSupport = (doc.getObject("XY_Plane024"), [""])
sketch22.MapMode = "FlatFace"
sketch22.AttachmentOffset = App.Placement(V(0, 0, 5), App.Rotation())
add_polygon(sketch22, [(-3, 3), (-3, 2), (-2, 2), (-2, 3)])  # lines 0-3
sketch22.addConstraint(Sketcher.Constraint("Vertical", 0))
sketch22.addConstraint(Sketcher.Constraint("Horizontal", 1))
sketch22.addConstraint(Sketcher.Constraint("Vertical", 2))
sketch22.addConstraint(Sketcher.Constraint("Horizontal", 3))
sketch22.addConstraint(Sketcher.Constraint("Equal", 3, 0))
sketch22.addConstraint(Sketcher.Constraint("DistanceX", 1, 1, 1, 2, 1.0))
sketch22.addConstraint(Sketcher.Constraint("DistanceX", 0, 2, -1, 1, 3.0))
sketch22.addConstraint(Sketcher.Constraint("DistanceY", -1, 1, 0, 2, 2.0))
pad22 = doc.addObject("PartDesign::Pad", "Pad021")
body25.addObject(pad22)
pad22.Profile = sketch22
pad22.Length = 1
body26 = doc.addObject("PartDesign::Body", "Body025")

# Sketch on XY plane
sketch23 = doc.addObject("Sketcher::SketchObject", "Sketch022")
body26.addObject(sketch23)
sketch23.AttachmentSupport = (doc.getObject("XY_Plane025"), [""])
sketch23.MapMode = "FlatFace"
sketch23.AttachmentOffset = App.Placement(V(0, 0, 5), App.Rotation())
add_polygon(sketch23, [(-3, 1), (-3, 0), (-2, 0), (-2, 1)])  # lines 0-3
sketch23.addConstraint(Sketcher.Constraint("Vertical", 0))
sketch23.addConstraint(Sketcher.Constraint("Horizontal", 1))
sketch23.addConstraint(Sketcher.Constraint("Vertical", 2))
sketch23.addConstraint(Sketcher.Constraint("Horizontal", 3))
sketch23.addConstraint(Sketcher.Constraint("PointOnObject", 0, 2, -1))
sketch23.addConstraint(Sketcher.Constraint("Equal", 3, 0))
sketch23.addConstraint(Sketcher.Constraint("DistanceX", 1, 1, 1, 2, 1.0))
sketch23.addConstraint(Sketcher.Constraint("DistanceX", 0, 2, -1, 1, 3.0))
pad23 = doc.addObject("PartDesign::Pad", "Pad022")
body26.addObject(pad23)
pad23.Profile = sketch23
pad23.Length = 1
body27 = doc.addObject("PartDesign::Body", "Body026")

# Sketch on XY plane
sketch24 = doc.addObject("Sketcher::SketchObject", "Sketch023")
body27.addObject(sketch24)
sketch24.AttachmentSupport = (doc.getObject("XY_Plane026"), [""])
sketch24.MapMode = "FlatFace"
add_polygon(sketch24, [(-4, 3), (-4, 0), (-1, 0), (-1, 3)])  # lines 0-3
sketch24.addConstraint(Sketcher.Constraint("Vertical", 0))
sketch24.addConstraint(Sketcher.Constraint("Horizontal", 1))
sketch24.addConstraint(Sketcher.Constraint("Vertical", 2))
sketch24.addConstraint(Sketcher.Constraint("Horizontal", 3))
sketch24.addConstraint(Sketcher.Constraint("PointOnObject", 0, 2, -1))
sketch24.addConstraint(Sketcher.Constraint("Equal", 3, 0))
sketch24.addConstraint(Sketcher.Constraint("DistanceX", 1, 1, 1, 2, 3.0))
sketch24.addConstraint(Sketcher.Constraint("DistanceX", 0, 2, -1, 1, 4.0))
pad24 = doc.addObject("PartDesign::Pad", "Pad023")
body27.addObject(pad24)
pad24.Profile = sketch24
pad24.Length = 6
doc.recompute()

boolean19 = doc.addObject("PartDesign::Boolean", "Boolean018")
body27.addObject(boolean19)
boolean19.Type = "Cut"
boolean19.addObjects([body26])
doc.recompute()

boolean20 = doc.addObject("PartDesign::Boolean", "Boolean019")
body27.addObject(boolean20)
boolean20.Type = "Cut"
boolean20.addObjects([body25])
doc.recompute()

boolean21 = doc.addObject("PartDesign::Boolean", "Boolean020")
body27.addObject(boolean21)
boolean21.Type = "Cut"
boolean21.addObjects([body24])
doc.recompute()

boolean22 = doc.addObject("PartDesign::Boolean", "Boolean021")
body27.addObject(boolean22)
boolean22.Type = "Cut"
boolean22.addObjects([body23])
doc.recompute()

boolean23 = doc.addObject("PartDesign::Boolean", "Boolean022")
body27.addObject(boolean23)
boolean23.Type = "Cut"
boolean23.addObjects([body22])
body28 = doc.addObject("PartDesign::Body", "Body027")
doc.recompute()

body27.Placement = App.Placement(V(12, 8, 0), App.Rotation(V(0, 0, 1), 0))
boolean24 = doc.addObject("PartDesign::Boolean", "Boolean023")
body28.addObject(boolean24)
boolean24.Type = "Fuse"
boolean24.addObjects([body27])
body29 = doc.addObject("PartDesign::Body", "Body028")

# Sketch on XY plane
sketch25 = doc.addObject("Sketcher::SketchObject", "Sketch024")
body29.addObject(sketch25)
sketch25.AttachmentSupport = (doc.getObject("XY_Plane028"), [""])
sketch25.MapMode = "FlatFace"
add_polygon(sketch25, [(4, 7), (4, -3), (6, -3), (6, 7)])  # lines 0-3
sketch25.addConstraint(Sketcher.Constraint("Vertical", 0))
sketch25.addConstraint(Sketcher.Constraint("Horizontal", 1))
sketch25.addConstraint(Sketcher.Constraint("Vertical", 2))
sketch25.addConstraint(Sketcher.Constraint("Horizontal", 3))
sketch25.addConstraint(Sketcher.Constraint("DistanceX", 1, 1, 1, 2, 2.0))
sketch25.addConstraint(Sketcher.Constraint("DistanceY", 0, 2, 0, 1, 10.0))
sketch25.addConstraint(Sketcher.Constraint("DistanceX", -1, 1, 0, 2, 4.0))
sketch25.addConstraint(Sketcher.Constraint("DistanceY", 0, 2, -1, 1, 3.0))
pad25 = doc.addObject("PartDesign::Pad", "Pad024")
body29.addObject(pad25)
pad25.Profile = sketch25
pad25.Length = 2.5
body30 = doc.addObject("PartDesign::Body", "Body029")

# Sketch on XY plane
sketch26 = doc.addObject("Sketcher::SketchObject", "Sketch025")
body30.addObject(sketch26)
sketch26.AttachmentSupport = (doc.getObject("XY_Plane029"), [""])
sketch26.MapMode = "FlatFace"
sketch26.AttachmentOffset = App.Placement(V(0, 0, -2), App.Rotation())
add_polygon(sketch26, [(1, 9), (1, 1), (9, 1), (9, 9)])  # lines 0-3
sketch26.addConstraint(Sketcher.Constraint("Vertical", 0))
sketch26.addConstraint(Sketcher.Constraint("Horizontal", 1))
sketch26.addConstraint(Sketcher.Constraint("Vertical", 2))
sketch26.addConstraint(Sketcher.Constraint("Horizontal", 3))
sketch26.addConstraint(Sketcher.Constraint("Equal", 3, 0))
sketch26.addConstraint(Sketcher.Constraint("DistanceX", 1, 1, 1, 2, 8.0))
sketch26.addConstraint(Sketcher.Constraint("DistanceX", -1, 1, 0, 2, 1.0))
sketch26.addConstraint(Sketcher.Constraint("DistanceY", -1, 1, 0, 2, 1.0))
pad26 = doc.addObject("PartDesign::Pad", "Pad025")
body30.addObject(pad26)
pad26.Profile = sketch26
pad26.Length = 10
body31 = doc.addObject("PartDesign::Body", "Body030")

# Sketch on XY plane
sketch27 = doc.addObject("Sketcher::SketchObject", "Sketch026")
body31.addObject(sketch27)
sketch27.AttachmentSupport = (doc.getObject("XY_Plane030"), [""])
sketch27.MapMode = "FlatFace"
add_polygon(sketch27, [(0, 10), (0, 0), (10, 0), (10, 10)])  # lines 0-3
sketch27.addConstraint(Sketcher.Constraint("Vertical", 0))
sketch27.addConstraint(Sketcher.Constraint("Horizontal", 1))
sketch27.addConstraint(Sketcher.Constraint("Vertical", 2))
sketch27.addConstraint(Sketcher.Constraint("Horizontal", 3))
sketch27.addConstraint(Sketcher.Constraint("Coincident", 0, 2, -1, 1))
sketch27.addConstraint(Sketcher.Constraint("Equal", 3, 0))
sketch27.addConstraint(Sketcher.Constraint("DistanceX", 1, 1, 1, 2, 10.0))
pad27 = doc.addObject("PartDesign::Pad", "Pad026")
body31.addObject(pad27)
pad27.Profile = sketch27
pad27.Length = 3.5
doc.recompute()

boolean25 = doc.addObject("PartDesign::Boolean", "Boolean024")
body31.addObject(boolean25)
boolean25.Type = "Cut"
boolean25.addObjects([body30])
doc.recompute()

boolean26 = doc.addObject("PartDesign::Boolean", "Boolean025")
body31.addObject(boolean26)
boolean26.Type = "Cut"
boolean26.addObjects([body29])
doc.recompute()

boolean27 = doc.addObject("PartDesign::Boolean", "Boolean026")
body31.addObject(boolean27)
boolean27.Type = "Fuse"
boolean27.addObjects([body7])
doc.recompute()

boolean28 = doc.addObject("PartDesign::Boolean", "Boolean027")
body31.addObject(boolean28)
boolean28.Type = "Fuse"
boolean28.addObjects([body14])
doc.recompute()

boolean29 = doc.addObject("PartDesign::Boolean", "Boolean028")
body31.addObject(boolean29)
boolean29.Type = "Fuse"
boolean29.addObjects([body21])
doc.recompute()

boolean30 = doc.addObject("PartDesign::Boolean", "Boolean029")
body31.addObject(boolean30)
boolean30.Type = "Fuse"
boolean30.addObjects([body28])

doc.recompute()
